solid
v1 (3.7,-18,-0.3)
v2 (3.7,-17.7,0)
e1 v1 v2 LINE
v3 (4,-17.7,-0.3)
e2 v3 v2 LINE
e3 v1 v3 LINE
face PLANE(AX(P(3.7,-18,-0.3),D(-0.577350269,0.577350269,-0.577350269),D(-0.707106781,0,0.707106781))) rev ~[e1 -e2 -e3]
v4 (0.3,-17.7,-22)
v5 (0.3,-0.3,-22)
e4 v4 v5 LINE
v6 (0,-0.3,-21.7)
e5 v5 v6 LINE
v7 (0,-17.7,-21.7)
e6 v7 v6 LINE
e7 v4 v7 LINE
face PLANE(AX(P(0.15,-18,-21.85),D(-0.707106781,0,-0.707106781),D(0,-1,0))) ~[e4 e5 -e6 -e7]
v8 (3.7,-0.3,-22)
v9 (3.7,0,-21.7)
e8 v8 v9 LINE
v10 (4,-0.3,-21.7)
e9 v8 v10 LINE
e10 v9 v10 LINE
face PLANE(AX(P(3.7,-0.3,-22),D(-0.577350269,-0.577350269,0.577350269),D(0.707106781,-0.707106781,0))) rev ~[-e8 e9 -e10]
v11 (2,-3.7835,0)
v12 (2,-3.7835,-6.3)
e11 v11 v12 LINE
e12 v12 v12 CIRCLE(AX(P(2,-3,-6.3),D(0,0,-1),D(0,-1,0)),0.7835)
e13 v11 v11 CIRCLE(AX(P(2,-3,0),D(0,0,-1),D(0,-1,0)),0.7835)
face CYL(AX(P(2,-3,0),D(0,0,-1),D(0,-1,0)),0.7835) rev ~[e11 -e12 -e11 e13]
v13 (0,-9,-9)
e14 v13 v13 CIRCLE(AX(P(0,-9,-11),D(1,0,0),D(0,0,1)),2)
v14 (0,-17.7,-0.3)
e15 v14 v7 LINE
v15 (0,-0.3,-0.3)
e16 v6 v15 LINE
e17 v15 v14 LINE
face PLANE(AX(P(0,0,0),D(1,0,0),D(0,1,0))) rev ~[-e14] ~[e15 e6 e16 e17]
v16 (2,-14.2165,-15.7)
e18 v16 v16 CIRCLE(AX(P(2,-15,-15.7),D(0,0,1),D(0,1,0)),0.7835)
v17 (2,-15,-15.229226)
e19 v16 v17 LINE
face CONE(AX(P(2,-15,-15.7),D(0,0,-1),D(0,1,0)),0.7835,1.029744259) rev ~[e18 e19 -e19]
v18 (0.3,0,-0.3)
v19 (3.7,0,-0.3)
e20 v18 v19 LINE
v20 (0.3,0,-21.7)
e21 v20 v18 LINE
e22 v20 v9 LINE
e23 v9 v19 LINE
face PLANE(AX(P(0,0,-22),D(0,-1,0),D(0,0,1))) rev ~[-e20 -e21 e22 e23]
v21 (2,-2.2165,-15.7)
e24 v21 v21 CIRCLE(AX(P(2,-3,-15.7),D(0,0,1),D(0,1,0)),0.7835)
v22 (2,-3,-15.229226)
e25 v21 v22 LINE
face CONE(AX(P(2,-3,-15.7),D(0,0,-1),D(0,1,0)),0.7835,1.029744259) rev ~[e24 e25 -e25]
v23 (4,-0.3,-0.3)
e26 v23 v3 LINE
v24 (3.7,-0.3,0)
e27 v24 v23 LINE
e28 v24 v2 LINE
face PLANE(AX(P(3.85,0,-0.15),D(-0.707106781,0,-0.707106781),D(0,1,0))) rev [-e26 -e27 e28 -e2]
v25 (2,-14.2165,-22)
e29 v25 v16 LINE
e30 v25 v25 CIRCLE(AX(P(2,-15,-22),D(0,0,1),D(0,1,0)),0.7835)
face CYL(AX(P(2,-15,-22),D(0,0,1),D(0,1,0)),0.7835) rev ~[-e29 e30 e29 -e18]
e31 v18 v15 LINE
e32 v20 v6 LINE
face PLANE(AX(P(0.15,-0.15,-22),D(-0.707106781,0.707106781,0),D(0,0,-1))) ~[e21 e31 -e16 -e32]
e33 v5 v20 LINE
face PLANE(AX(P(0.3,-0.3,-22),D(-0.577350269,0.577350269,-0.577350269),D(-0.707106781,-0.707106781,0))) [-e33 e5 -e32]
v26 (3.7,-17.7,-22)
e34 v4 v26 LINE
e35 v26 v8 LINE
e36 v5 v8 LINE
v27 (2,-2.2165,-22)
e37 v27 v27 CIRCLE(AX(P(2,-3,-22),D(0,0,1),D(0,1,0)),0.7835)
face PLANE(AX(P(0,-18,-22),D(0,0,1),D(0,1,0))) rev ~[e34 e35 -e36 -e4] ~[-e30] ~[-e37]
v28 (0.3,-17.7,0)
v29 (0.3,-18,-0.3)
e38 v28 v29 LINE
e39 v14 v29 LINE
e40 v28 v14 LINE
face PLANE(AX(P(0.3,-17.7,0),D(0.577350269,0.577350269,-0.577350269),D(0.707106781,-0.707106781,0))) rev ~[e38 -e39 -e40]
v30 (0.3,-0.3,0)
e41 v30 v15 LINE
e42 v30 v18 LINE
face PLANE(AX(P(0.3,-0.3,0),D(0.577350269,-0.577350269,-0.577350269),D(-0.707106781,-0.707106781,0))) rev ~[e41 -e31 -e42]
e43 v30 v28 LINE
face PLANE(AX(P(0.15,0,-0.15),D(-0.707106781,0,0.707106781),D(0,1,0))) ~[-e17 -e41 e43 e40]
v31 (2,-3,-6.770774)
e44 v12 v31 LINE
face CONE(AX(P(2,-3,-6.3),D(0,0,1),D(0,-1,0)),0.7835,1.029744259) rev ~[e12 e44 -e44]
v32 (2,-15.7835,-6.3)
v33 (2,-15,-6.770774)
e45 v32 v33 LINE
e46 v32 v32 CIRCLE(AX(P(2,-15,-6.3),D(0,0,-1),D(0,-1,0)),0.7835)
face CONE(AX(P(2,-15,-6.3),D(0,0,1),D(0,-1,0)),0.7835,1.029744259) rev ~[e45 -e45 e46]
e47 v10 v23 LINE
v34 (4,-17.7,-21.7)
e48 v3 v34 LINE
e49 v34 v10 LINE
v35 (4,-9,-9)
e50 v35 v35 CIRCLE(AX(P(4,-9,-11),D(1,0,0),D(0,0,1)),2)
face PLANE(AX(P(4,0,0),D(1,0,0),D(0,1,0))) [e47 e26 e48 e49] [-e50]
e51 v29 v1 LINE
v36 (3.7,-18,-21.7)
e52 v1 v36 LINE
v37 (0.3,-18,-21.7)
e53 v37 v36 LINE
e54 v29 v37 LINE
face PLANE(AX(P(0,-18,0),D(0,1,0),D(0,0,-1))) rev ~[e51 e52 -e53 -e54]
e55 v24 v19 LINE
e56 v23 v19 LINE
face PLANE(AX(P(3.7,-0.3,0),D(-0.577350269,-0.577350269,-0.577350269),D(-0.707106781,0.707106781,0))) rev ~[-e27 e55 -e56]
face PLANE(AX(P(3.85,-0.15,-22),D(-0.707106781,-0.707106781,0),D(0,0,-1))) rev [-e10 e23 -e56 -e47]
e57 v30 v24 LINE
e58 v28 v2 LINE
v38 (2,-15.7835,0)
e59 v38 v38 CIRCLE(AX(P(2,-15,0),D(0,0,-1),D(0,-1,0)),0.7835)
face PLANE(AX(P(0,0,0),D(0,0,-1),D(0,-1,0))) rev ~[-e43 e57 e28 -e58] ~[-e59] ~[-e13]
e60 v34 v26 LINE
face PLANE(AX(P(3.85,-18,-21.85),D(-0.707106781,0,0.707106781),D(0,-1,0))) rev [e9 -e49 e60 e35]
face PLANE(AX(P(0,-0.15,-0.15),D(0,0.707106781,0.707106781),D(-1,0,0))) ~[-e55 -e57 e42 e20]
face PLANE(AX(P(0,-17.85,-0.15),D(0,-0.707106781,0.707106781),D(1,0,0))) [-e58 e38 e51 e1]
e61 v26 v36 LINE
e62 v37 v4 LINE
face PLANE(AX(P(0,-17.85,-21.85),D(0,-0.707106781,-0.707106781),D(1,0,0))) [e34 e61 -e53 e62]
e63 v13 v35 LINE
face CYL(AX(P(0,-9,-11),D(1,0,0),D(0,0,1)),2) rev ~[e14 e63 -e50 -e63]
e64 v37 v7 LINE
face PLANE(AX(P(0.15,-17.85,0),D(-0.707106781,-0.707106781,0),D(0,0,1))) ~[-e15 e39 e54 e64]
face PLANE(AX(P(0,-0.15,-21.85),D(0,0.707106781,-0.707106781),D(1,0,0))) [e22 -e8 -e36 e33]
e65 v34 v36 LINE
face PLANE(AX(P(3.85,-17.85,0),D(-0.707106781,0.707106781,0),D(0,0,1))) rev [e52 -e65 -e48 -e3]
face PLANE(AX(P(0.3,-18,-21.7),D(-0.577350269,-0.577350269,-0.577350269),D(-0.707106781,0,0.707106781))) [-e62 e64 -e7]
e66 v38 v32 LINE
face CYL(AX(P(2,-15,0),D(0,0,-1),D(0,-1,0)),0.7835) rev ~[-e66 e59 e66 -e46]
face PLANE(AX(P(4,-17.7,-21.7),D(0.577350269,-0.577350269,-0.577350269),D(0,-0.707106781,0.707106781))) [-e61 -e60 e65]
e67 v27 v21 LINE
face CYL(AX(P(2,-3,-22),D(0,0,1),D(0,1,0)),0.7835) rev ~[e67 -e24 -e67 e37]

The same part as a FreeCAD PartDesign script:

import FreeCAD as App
import Part
import Sketcher
from FreeCAD import Vector
Q = App.Units.Quantity


def add_polygon(sketch, points):
    """Adds a closed chain of lines whose ends are joined by coincident constraints."""
    first, n = sketch.GeometryCount, len(points)
    for a, b in zip(points, points[1:] + points[:1]):
        sketch.addGeometry(Part.LineSegment(App.Vector(*a, 0), App.Vector(*b, 0)), False)
    for i in range(n):
        sketch.addConstraint(Sketcher.Constraint("Coincident", first + i, 2, first + (i + 1) % n, 1))

doc = App.newDocument("Part")
params = doc.addObject("Spreadsheet::Sheet", "Params")
for row, (alias, value) in enumerate([
    ("sketch1_width", "18 mm"),
    ("sketch1_height", "22 mm"),
    ("pad1_length", "4 mm"),
    ("chamfer_size", "0.3 mm"),
    ("hole_diameter", "1.567 mm"),
    ("hole_depth", "6.3 mm"),
    ("hole2_diameter", "1.567 mm"),
    ("hole2_depth", "6.3 mm"),
    ("sketch4_diameter", "4 mm"),
    ("hole3_diameter", "4 mm"),
    ("hole3_depth", "6.3 mm"),
], start=1):
    params.set(f"A{row}", alias)
    params.set(f"B{row}", "=" + value)
    params.setAlias(f"B{row}", alias)

body = doc.addObject("PartDesign::Body", "Body")

sketch1 = doc.addObject("Sketcher::SketchObject", "Sketch")
body.addObject(sketch1)
sketch1.AttachmentSupport = (doc.YZ_Plane, [""])
sketch1.MapMode = "FlatFace"
add_polygon(sketch1, [(0, -22), (0, 0), (-18, 0), (-18, -22)])
sketch1.addConstraint([
    Sketcher.Constraint("Vertical", 0),
    Sketcher.Constraint("Horizontal", 1),
    Sketcher.Constraint("Vertical", 2),
    Sketcher.Constraint("Horizontal", 3),
    Sketcher.Constraint("Coincident", 0, 2, -1, 1),
    Sketcher.Constraint("DistanceX", 1, 2, 1, 1, Q("18 mm")),
    Sketcher.Constraint("DistanceY", 0, 1, 0, 2, Q("22 mm")),
])
sketch1.setExpression("Constraints[9]", "Params.sketch1_width")
sketch1.setExpression("Constraints[10]", "Params.sketch1_height")
pad1 = doc.addObject("PartDesign::Pad", "Pad")
body.addObject(pad1)
pad1.Profile = sketch1
pad1.setExpression("Length", "Params.pad1_length")
doc.recompute()

chamfer = doc.addObject("PartDesign::Chamfer", "Chamfer")
body.addObject(chamfer)
chamfer.Base = (pad1, ["Edge1"])
chamfer.UseAllEdges = True
chamfer.setExpression("Size", "Params.chamfer_size")

sketch2 = doc.addObject("Sketcher::SketchObject", "Sketch001")
body.addObject(sketch2)
sketch2.AttachmentSupport = (doc.XY_Plane, [""])
sketch2.MapMode = "FlatFace"
sketch2.addGeometry([
    Part.Circle(Vector(2, -3, 0), Vector(0, 0, 1), 0.8),
    Part.Circle(Vector(2, -15, 0), Vector(0, 0, 1), 0.8),
], False)
sketch2.addConstraint([
    Sketcher.Constraint("Equal", 0, 1),
    Sketcher.Constraint("Vertical", 0, 3, 1, 3),
    Sketcher.Constraint("Diameter", 0, Q("1.567 mm")),
    Sketcher.Constraint("DistanceX", -1, 1, 0, 3, Q("2 mm")),
    Sketcher.Constraint("DistanceY", 0, 3, -1, 1, Q("3 mm")),
    Sketcher.Constraint("DistanceY", 1, 3, -1, 1, Q("15 mm")),
])
doc.recompute()
hole = doc.addObject("PartDesign::Hole", "Hole")
body.addObject(hole)
hole.Profile = sketch2
hole.ThreadType = "None"
hole.setExpression("Diameter", "Params.hole_diameter")
hole.DepthType = "Dimension"
hole.setExpression("Depth", "Params.hole_depth")
hole.DrillPoint = "Angled"
hole.DrillPointAngle = 118

sketch3 = doc.addObject("Sketcher::SketchObject", "Sketch002")
body.addObject(sketch3)
sketch3.AttachmentSupport = (doc.XY_Plane, [""])
sketch3.MapMode = "FlatFace"
sketch3.AttachmentOffset = App.Placement(Vector(0, 0, -22), App.Rotation())
sketch3.addGeometry([
    Part.Circle(Vector(2, -15, 0), Vector(0, 0, 1), 0.8),
    Part.Circle(Vector(2, -3, 0), Vector(0, 0, 1), 0.8),
], False)
sketch3.addConstraint([
    Sketcher.Constraint("Equal", 0, 1),
    Sketcher.Constraint("Vertical", 0, 3, 1, 3),
    Sketcher.Constraint("Diameter", 0, Q("1.567 mm")),
    Sketcher.Constraint("DistanceX", -1, 1, 0, 3, Q("2 mm")),
    Sketcher.Constraint("DistanceY", 0, 3, -1, 1, Q("15 mm")),
    Sketcher.Constraint("DistanceY", 1, 3, -1, 1, Q("3 mm")),
])
doc.recompute()
hole2 = doc.addObject("PartDesign::Hole", "Hole001")
body.addObject(hole2)
hole2.Profile = sketch3
hole2.ThreadType = "None"
hole2.setExpression("Diameter", "Params.hole2_diameter")
hole2.DepthType = "Dimension"
hole2.setExpression("Depth", "Params.hole2_depth")
hole2.DrillPoint = "Angled"
hole2.DrillPointAngle = 118
hole2.Reversed = True

sketch4 = doc.addObject("Sketcher::SketchObject", "Sketch003")
body.addObject(sketch4)
sketch4.AttachmentSupport = (doc.YZ_Plane, [""])
sketch4.MapMode = "FlatFace"
sketch4.addGeometry(Part.Circle(Vector(-9, -11, 0), Vector(0, 0, 1), 2), False)
sketch4.addConstraint([
    Sketcher.Constraint("Diameter", 0, Q("4 mm")),
    Sketcher.Constraint("DistanceX", 0, 3, -1, 1, Q("9 mm")),
    Sketcher.Constraint("DistanceY", 0, 3, -1, 1, Q("11 mm")),
])
sketch4.setExpression("Constraints[0]", "Params.sketch4_diameter")
doc.recompute()
hole3 = doc.addObject("PartDesign::Hole", "Hole002")
body.addObject(hole3)
hole3.Profile = sketch4
hole3.ThreadType = "None"
hole3.setExpression("Diameter", "Params.hole3_diameter")
hole3.DepthType = "Dimension"
hole3.setExpression("Depth", "Params.hole3_depth")
hole3.DrillPoint = "Angled"
hole3.DrillPointAngle = 118
hole3.Reversed = True

doc.recompute()
